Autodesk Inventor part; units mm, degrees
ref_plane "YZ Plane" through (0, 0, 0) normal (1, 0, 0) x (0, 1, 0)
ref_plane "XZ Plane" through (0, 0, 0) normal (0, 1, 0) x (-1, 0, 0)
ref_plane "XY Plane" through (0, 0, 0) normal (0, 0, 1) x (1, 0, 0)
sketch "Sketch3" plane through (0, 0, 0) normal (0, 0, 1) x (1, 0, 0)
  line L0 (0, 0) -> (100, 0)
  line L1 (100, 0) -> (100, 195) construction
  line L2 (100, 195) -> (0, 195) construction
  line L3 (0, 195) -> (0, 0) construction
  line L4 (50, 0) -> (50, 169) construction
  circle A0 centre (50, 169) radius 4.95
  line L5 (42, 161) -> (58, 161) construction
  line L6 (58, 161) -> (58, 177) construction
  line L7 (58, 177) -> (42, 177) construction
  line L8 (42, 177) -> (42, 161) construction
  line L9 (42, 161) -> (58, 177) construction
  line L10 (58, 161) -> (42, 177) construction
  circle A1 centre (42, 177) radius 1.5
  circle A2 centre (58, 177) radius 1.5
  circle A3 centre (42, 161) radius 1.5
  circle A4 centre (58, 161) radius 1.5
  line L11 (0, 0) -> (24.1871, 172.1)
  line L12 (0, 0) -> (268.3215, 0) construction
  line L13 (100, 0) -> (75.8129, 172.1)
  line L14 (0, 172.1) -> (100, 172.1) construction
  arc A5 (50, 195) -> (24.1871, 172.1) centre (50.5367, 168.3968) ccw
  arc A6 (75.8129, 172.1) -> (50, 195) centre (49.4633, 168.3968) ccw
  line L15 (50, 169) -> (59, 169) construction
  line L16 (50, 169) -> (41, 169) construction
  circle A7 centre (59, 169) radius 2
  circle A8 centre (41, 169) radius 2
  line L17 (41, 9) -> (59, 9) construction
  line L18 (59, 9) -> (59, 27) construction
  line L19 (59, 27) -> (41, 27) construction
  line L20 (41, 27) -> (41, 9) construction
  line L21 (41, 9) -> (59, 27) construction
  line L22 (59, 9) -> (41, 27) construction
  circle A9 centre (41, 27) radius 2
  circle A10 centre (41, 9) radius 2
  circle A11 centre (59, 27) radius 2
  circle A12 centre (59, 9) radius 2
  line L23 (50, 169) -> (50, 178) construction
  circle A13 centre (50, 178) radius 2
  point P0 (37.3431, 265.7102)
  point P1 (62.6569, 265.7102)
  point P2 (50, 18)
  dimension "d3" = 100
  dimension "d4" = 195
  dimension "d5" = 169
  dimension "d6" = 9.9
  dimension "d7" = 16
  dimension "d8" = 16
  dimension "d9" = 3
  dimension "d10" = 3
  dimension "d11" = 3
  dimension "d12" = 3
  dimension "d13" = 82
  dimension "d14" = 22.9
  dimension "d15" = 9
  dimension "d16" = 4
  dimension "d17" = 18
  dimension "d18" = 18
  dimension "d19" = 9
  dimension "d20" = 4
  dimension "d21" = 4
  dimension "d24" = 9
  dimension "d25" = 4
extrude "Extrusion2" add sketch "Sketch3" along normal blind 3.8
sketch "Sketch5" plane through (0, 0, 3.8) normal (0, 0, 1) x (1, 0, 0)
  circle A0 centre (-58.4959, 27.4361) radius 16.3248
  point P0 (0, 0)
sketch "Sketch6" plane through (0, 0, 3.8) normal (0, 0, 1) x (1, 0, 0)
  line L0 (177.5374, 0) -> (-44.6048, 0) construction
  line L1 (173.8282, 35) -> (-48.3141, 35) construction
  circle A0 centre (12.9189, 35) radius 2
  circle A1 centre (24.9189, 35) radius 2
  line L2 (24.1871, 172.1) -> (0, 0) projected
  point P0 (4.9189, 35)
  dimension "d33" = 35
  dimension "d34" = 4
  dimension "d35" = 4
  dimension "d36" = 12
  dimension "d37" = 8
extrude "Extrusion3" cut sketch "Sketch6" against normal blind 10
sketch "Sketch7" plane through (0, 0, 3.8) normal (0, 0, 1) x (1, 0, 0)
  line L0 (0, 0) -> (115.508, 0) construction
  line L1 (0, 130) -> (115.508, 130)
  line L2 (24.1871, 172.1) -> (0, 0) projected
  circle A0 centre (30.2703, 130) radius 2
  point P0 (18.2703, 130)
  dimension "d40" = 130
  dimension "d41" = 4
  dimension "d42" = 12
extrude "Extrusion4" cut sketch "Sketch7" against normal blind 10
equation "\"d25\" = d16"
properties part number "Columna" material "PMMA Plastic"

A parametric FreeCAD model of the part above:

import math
import FreeCAD as App
import Part
import Sketcher
Q = App.Units.Quantity

doc = App.newDocument("Part")
body = doc.addObject("PartDesign::Body", "Body")

sketch1 = body.newObject("Sketcher::SketchObject", "Sketch")
sketch1.AttachmentSupport = (doc.getObject("XY_Plane"), [""])
sketch1.MapMode = "FlatFace"
sketch1.addGeometry([
    Part.LineSegment(App.Vector(24.1871, 172.1, 0), App.Vector(0, 0, 0)),
    Part.LineSegment(App.Vector(0, 0, 0), App.Vector(100, 0, 0)),
    Part.LineSegment(App.Vector(100, 0, 0), App.Vector(75.8129, 172.1, 0)),
    Part.ArcOfCircle(Part.Circle(App.Vector(49.4633, 168.3968, 0), App.Vector(0, 0, 1), 26.608553), math.radians(8.000011), math.radians(88.844257)),
    Part.ArcOfCircle(Part.Circle(App.Vector(50.5367, 168.3968, 0), App.Vector(0, 0, 1), 26.608613), math.radians(91.155743), math.radians(171.999989)),
    Part.Circle(App.Vector(41, 9, 0), App.Vector(0, 0, 1), 2),
    Part.Circle(App.Vector(41, 27, 0), App.Vector(0, 0, 1), 2),
    Part.Circle(App.Vector(59, 9, 0), App.Vector(0, 0, 1), 2),
    Part.Circle(App.Vector(59, 27, 0), App.Vector(0, 0, 1), 2),
    Part.Circle(App.Vector(42, 161, 0), App.Vector(0, 0, 1), 1.5),
    Part.Circle(App.Vector(41, 169, 0), App.Vector(0, 0, 1), 2),
    Part.Circle(App.Vector(42, 177, 0), App.Vector(0, 0, 1), 1.5),
    Part.Circle(App.Vector(50, 169, 0), App.Vector(0, 0, 1), 4.95),
    Part.Circle(App.Vector(58, 161, 0), App.Vector(0, 0, 1), 1.5),
    Part.Circle(App.Vector(59, 169, 0), App.Vector(0, 0, 1), 2),
    Part.Circle(App.Vector(50, 178, 0), App.Vector(0, 0, 1), 2),
    Part.Circle(App.Vector(58, 177, 0), App.Vector(0, 0, 1), 1.5),
], False)
sketch1.addConstraint([
    Sketcher.Constraint("Coincident", 0, 2, 1, 1),
    Sketcher.Constraint("Coincident", 1, 2, 2, 1),
    Sketcher.Constraint("Tangent", 2, 2, 3, 1),
    Sketcher.Constraint("Coincident", 3, 2, 4, 1),
    Sketcher.Constraint("Tangent", 4, 2, 0, 1),
    Sketcher.Constraint("Horizontal", 1),
    Sketcher.Constraint("Coincident", 0, 2, -1, 1),
    Sketcher.Constraint("Equal", 3, 4),
    Sketcher.Constraint("Equal", 5, 6),
    Sketcher.Constraint("Equal", 6, 7),
    Sketcher.Constraint("Equal", 7, 8),
    Sketcher.Constraint("Equal", 8, 10),
    Sketcher.Constraint("Equal", 9, 11),
    Sketcher.Constraint("Equal", 11, 13),
    Sketcher.Constraint("Equal", 10, 14),
    Sketcher.Constraint("Equal", 14, 15),
    Sketcher.Constraint("Equal", 13, 16),
    Sketcher.Constraint("Horizontal", 3, 3, 4, 3),
    Sketcher.Constraint("Horizontal", 5, 3, 7, 3),
    Sketcher.Constraint("Horizontal", 6, 3, 8, 3),
    Sketcher.Constraint("Horizontal", 10, 3, 12, 3),
    Sketcher.Constraint("Horizontal", 9, 3, 13, 3),
    Sketcher.Constraint("Horizontal", 12, 3, 14, 3),
    Sketcher.Constraint("Horizontal", 11, 3, 16, 3),
    Sketcher.Constraint("Horizontal", 2, 2, 4, 2),
    Sketcher.Constraint("Vertical", 5, 3, 6, 3),
    Sketcher.Constraint("Vertical", 7, 3, 8, 3),
    Sketcher.Constraint("Vertical", 6, 3, 10, 3),
    Sketcher.Constraint("Vertical", 9, 3, 11, 3),
    Sketcher.Constraint("Vertical", 8, 3, 14, 3),
    Sketcher.Constraint("Vertical", 12, 3, 15, 3),
    Sketcher.Constraint("Vertical", 13, 3, 16, 3),
    Sketcher.Constraint("Vertical", 15, 3, 3, 2),
    Sketcher.Constraint("Diameter", 5, 4.0),
    Sketcher.Constraint("Diameter", 9, 3.0),
    Sketcher.Constraint("Diameter", 12, 9.9),
    Sketcher.Constraint("DistanceX", 1, 1, 1, 2, 100.0),
    Sketcher.Constraint("DistanceY", -1, 1, 5, 3, 9.0),
    Sketcher.Constraint("DistanceY", -1, 1, 10, 3, 169.0),
    Sketcher.Constraint("DistanceY", -1, 1, 3, 2, 195.0),
    Sketcher.Constraint("DistanceY", 5, 3, 6, 3, 18.0),
    Sketcher.Constraint("DistanceX", 5, 3, 7, 3, 18.0),
    Sketcher.Constraint("DistanceY", 9, 3, 11, 3, 16.0),
    Sketcher.Constraint("DistanceX", 10, 3, 12, 3, 9.0),
    Sketcher.Constraint("DistanceX", 9, 3, 13, 3, 16.0),
    Sketcher.Constraint("DistanceY", 12, 3, 15, 3, 9.0),
    Sketcher.Constraint("DistanceY", 11, 3, 3, 2, 18.0),
    Sketcher.Constraint("Angle", 0, Q("-98 deg")),
    Sketcher.Constraint("DistanceX", -1, 1, 9, 3, 42.0),
    Sketcher.Constraint("DistanceY", -1, 1, 2, 2, 172.1),
])
pad1 = body.newObject("PartDesign::Pad", "Pad")
pad1.Profile = sketch1
pad1.Length = 3.8

sketch2 = body.newObject("Sketcher::SketchObject", "Sketch001")
sketch2.AttachmentSupport = (doc.getObject("XY_Plane"), [""])
sketch2.MapMode = "FlatFace"
sketch2.AttachmentOffset = App.Placement(App.Vector(0, 0, 3.8), App.Rotation())
sketch2.addGeometry([
    Part.Circle(App.Vector(12.9189, 35, 0), App.Vector(0, 0, 1), 2),
    Part.Circle(App.Vector(24.9189, 35, 0), App.Vector(0, 0, 1), 2),
], False)
sketch2.addConstraint([
    Sketcher.Constraint("Equal", 0, 1),
    Sketcher.Constraint("Horizontal", 0, 3, 1, 3),
    Sketcher.Constraint("Diameter", 0, 4.0),
    Sketcher.Constraint("DistanceY", -1, 1, 0, 3, 35.0),
    Sketcher.Constraint("DistanceX", 0, 3, 1, 3, 12.0),
    Sketcher.Constraint("DistanceX", -1, 1, 0, 3, 12.919),
])
pocket1 = body.newObject("PartDesign::Pocket", "Pocket")
pocket1.Profile = sketch2
pocket1.Length = 10

sketch3 = body.newObject("Sketcher::SketchObject", "Sketch002")
sketch3.AttachmentSupport = (doc.getObject("XY_Plane"), [""])
sketch3.MapMode = "FlatFace"
sketch3.AttachmentOffset = App.Placement(App.Vector(0, 0, 3.8), App.Rotation())
sketch3.addGeometry(Part.Circle(App.Vector(30.2703, 130, 0), App.Vector(0, 0, 1), 2), False)
sketch3.addConstraint([
    Sketcher.Constraint("Diameter", 0, 4.0),
    Sketcher.Constraint("DistanceY", -1, 1, 0, 3, 130.0),
    Sketcher.Constraint("DistanceX", -1, 1, 0, 3, 30.2703),
])
pocket2 = body.newObject("PartDesign::Pocket", "Pocket001")
pocket2.Profile = sketch3
pocket2.Length = 10

doc.recompute()
